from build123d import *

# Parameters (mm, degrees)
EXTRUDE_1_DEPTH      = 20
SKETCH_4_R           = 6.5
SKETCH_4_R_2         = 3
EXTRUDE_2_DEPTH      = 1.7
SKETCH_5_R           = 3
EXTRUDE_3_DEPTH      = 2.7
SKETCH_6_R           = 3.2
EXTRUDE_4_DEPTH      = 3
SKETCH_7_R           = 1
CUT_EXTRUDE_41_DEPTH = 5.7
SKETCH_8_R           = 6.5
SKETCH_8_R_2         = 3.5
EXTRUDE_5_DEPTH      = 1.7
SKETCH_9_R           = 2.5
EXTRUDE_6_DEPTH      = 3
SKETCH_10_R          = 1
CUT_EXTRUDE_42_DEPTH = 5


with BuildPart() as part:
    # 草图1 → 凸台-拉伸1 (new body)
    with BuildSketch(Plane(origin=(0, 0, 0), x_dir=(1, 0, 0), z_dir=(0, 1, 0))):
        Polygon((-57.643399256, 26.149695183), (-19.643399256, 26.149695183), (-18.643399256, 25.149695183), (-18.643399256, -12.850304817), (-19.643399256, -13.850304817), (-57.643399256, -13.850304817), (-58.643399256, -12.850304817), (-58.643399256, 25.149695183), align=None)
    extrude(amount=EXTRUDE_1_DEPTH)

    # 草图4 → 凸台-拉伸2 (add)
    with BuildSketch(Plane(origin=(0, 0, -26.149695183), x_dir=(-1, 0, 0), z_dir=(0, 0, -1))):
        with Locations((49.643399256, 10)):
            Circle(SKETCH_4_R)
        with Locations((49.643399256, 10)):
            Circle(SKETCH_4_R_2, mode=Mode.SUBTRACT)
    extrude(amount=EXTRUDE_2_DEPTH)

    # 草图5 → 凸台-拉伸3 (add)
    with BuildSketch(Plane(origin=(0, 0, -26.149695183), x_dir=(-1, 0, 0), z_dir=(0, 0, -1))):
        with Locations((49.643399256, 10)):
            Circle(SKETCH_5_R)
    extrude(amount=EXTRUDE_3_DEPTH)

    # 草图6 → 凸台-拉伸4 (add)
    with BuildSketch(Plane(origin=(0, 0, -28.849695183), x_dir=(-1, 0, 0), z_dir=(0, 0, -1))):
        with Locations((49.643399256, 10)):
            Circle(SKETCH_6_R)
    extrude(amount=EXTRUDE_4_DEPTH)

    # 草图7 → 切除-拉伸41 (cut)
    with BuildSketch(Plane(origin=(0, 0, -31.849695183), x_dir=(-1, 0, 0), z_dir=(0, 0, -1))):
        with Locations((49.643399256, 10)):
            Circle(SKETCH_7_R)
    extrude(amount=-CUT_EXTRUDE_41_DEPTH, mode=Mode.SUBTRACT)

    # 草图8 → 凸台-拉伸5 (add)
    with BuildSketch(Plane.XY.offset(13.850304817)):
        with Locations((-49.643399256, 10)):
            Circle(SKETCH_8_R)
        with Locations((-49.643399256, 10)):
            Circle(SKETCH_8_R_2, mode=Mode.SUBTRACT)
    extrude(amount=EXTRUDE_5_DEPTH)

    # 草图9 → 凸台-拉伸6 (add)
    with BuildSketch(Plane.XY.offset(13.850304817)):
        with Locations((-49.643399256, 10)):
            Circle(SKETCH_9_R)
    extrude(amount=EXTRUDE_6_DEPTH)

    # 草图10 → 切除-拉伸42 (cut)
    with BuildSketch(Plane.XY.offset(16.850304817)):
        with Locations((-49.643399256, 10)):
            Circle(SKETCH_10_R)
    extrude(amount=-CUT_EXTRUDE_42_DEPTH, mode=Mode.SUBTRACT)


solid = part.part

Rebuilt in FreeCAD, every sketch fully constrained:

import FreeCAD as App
import Part
import Sketcher
from FreeCAD import Vector

doc = App.newDocument("Part")
body = doc.addObject("PartDesign::Body", "Body")

sketch1 = body.newObject("Sketcher::SketchObject", "Sketch")
sketch1.AttachmentSupport = (doc.getObject("XZ_Plane"), [""])
sketch1.MapMode = "FlatFace"
sketch1.addGeometry(Part.LineSegment(Vector(-19.6, -26.1, 0), Vector(-57.6, -26.1, 0)), False)
sketch1.addGeometry(Part.LineSegment(Vector(-57.6, -26.1, 0), Vector(-58.6, -25.1, 0)), False)
sketch1.addGeometry(Part.LineSegment(Vector(-58.6, -25.1, 0), Vector(-58.6, 12.9, 0)), False)
sketch1.addGeometry(Part.LineSegment(Vector(-58.6, 12.9, 0), Vector(-57.6, 13.9, 0)), False)
sketch1.addGeometry(Part.LineSegment(Vector(-57.6, 13.9, 0), Vector(-19.6, 13.9, 0)), False)
sketch1.addGeometry(Part.LineSegment(Vector(-19.6, 13.9, 0), Vector(-18.6, 12.9, 0)), False)
sketch1.addGeometry(Part.LineSegment(Vector(-18.6, 12.9, 0), Vector(-18.6, -25.1, 0)), False)
sketch1.addGeometry(Part.LineSegment(Vector(-18.6, -25.1, 0), Vector(-19.6, -26.1, 0)), False)
sketch1.addConstraint(Sketcher.Constraint("Coincident", 0, 2, 1, 1))
sketch1.addConstraint(Sketcher.Constraint("Coincident", 1, 2, 2, 1))
sketch1.addConstraint(Sketcher.Constraint("Coincident", 2, 2, 3, 1))
sketch1.addConstraint(Sketcher.Constraint("Coincident", 3, 2, 4, 1))
sketch1.addConstraint(Sketcher.Constraint("Coincident", 4, 2, 5, 1))
sketch1.addConstraint(Sketcher.Constraint("Coincident", 5, 2, 6, 1))
sketch1.addConstraint(Sketcher.Constraint("Coincident", 6, 2, 7, 1))
sketch1.addConstraint(Sketcher.Constraint("Coincident", 7, 2, 0, 1))
sketch1.addConstraint(Sketcher.Constraint("Horizontal", 0))
sketch1.addConstraint(Sketcher.Constraint("Vertical", 2))
sketch1.addConstraint(Sketcher.Constraint("Horizontal", 4))
sketch1.addConstraint(Sketcher.Constraint("Vertical", 6))
sketch1.addConstraint(Sketcher.Constraint("Perpendicular", 1, 3))
sketch1.addConstraint(Sketcher.Constraint("Perpendicular", 3, 5))
sketch1.addConstraint(Sketcher.Constraint("Perpendicular", 5, 7))
sketch1.addConstraint(Sketcher.Constraint("Horizontal", 2, 2, 5, 2))
sketch1.addConstraint(Sketcher.Constraint("Horizontal", 1, 2, 6, 2))
sketch1.addConstraint(Sketcher.Constraint("Vertical", 0, 2, 3, 2))
sketch1.addConstraint(Sketcher.Constraint("Vertical", 4, 2, 7, 2))
sketch1.addConstraint(Sketcher.Constraint("Equal", 4, 2))
sketch1.addConstraint(Sketcher.Constraint("DistanceX", 0, 2, 0, 1, 38.0))
sketch1.addConstraint(Sketcher.Constraint("DistanceX", 1, 2, 0, 2, 1.0))
sketch1.addConstraint(Sketcher.Constraint("DistanceX", 0, 2, -1, 1, 57.643399))
sketch1.addConstraint(Sketcher.Constraint("DistanceY", 0, 2, -1, 1, 26.149695))
pad1 = body.newObject("PartDesign::Pad", "Pad")
pad1.Profile = sketch1
pad1.Length = 20
pad1.Reversed = True

sketch2 = body.newObject("Sketcher::SketchObject", "Sketch001")
sketch2.AttachmentSupport = (doc.getObject("XY_Plane"), [""])
sketch2.MapMode = "FlatFace"
sketch2.AttachmentOffset = App.Placement(Vector(0, 0, -26.149695), App.Rotation())
sketch2.addGeometry(Part.Circle(Vector(-49.6, 10, 0), Vector(0, 0, 1), 6.5), False)
sketch2.addGeometry(Part.Circle(Vector(-49.6, 10, 0), Vector(0, 0, 1), 3), False)
sketch2.addConstraint(Sketcher.Constraint("Coincident", 1, 3, 0, 3))
sketch2.addConstraint(Sketcher.Constraint("Diameter", 0, 13.0))
sketch2.addConstraint(Sketcher.Constraint("Diameter", 1, 6.0))
sketch2.addConstraint(Sketcher.Constraint("DistanceY", -1, 1, 0, 3, 10.0))
sketch2.addConstraint(Sketcher.Constraint("DistanceX", 0, 3, -1, 1, 49.643399))
pad2 = body.newObject("PartDesign::Pad", "Pad001")
pad2.Profile = sketch2
pad2.Length = 1.7
pad2.Reversed = True

sketch3 = body.newObject("Sketcher::SketchObject", "Sketch002")
sketch3.AttachmentSupport = (doc.getObject("XY_Plane"), [""])
sketch3.MapMode = "FlatFace"
sketch3.AttachmentOffset = App.Placement(Vector(0, 0, -26.149695), App.Rotation())
sketch3.addGeometry(Part.Circle(Vector(-49.6, 10, 0), Vector(0, 0, 1), 3), False)
sketch3.addConstraint(Sketcher.Constraint("Diameter", 0, 6.0))
sketch3.addConstraint(Sketcher.Constraint("DistanceY", -1, 1, 0, 3, 10.0))
sketch3.addConstraint(Sketcher.Constraint("DistanceX", 0, 3, -1, 1, 49.643399))
pad3 = body.newObject("PartDesign::Pad", "Pad002")
pad3.Profile = sketch3
pad3.Length = 2.7
pad3.Reversed = True

sketch4 = body.newObject("Sketcher::SketchObject", "Sketch003")
sketch4.AttachmentSupport = (doc.getObject("XY_Plane"), [""])
sketch4.MapMode = "FlatFace"
sketch4.AttachmentOffset = App.Placement(Vector(0, 0, -28.849695), App.Rotation())
sketch4.addGeometry(Part.Circle(Vector(-49.6, 10, 0), Vector(0, 0, 1), 3.2), False)
sketch4.addConstraint(Sketcher.Constraint("Diameter", 0, 6.4))
sketch4.addConstraint(Sketcher.Constraint("DistanceY", -1, 1, 0, 3, 10.0))
sketch4.addConstraint(Sketcher.Constraint("DistanceX", 0, 3, -1, 1, 49.643399))
pad4 = body.newObject("PartDesign::Pad", "Pad003")
pad4.Profile = sketch4
pad4.Length = 3
pad4.Reversed = True

sketch5 = body.newObject("Sketcher::SketchObject", "Sketch004")
sketch5.AttachmentSupport = (doc.getObject("XY_Plane"), [""])
sketch5.MapMode = "FlatFace"
sketch5.AttachmentOffset = App.Placement(Vector(0, 0, -31.849695), App.Rotation())
sketch5.addGeometry(Part.Circle(Vector(-49.6, 10, 0), Vector(0, 0, 1), 1), False)
sketch5.addConstraint(Sketcher.Constraint("Diameter", 0, 2.0))
sketch5.addConstraint(Sketcher.Constraint("DistanceY", -1, 1, 0, 3, 10.0))
sketch5.addConstraint(Sketcher.Constraint("DistanceX", 0, 3, -1, 1, 49.643399))
pocket1 = body.newObject("PartDesign::Pocket", "Pocket")
pocket1.Profile = sketch5
pocket1.Length = 5.7
pocket1.Reversed = True

sketch6 = body.newObject("Sketcher::SketchObject", "Sketch005")
sketch6.AttachmentSupport = (doc.getObject("XY_Plane"), [""])
sketch6.MapMode = "FlatFace"
sketch6.AttachmentOffset = App.Placement(Vector(0, 0, 13.850305), App.Rotation())
sketch6.addGeometry(Part.Circle(Vector(-49.6, 10, 0), Vector(0, 0, 1), 6.5), False)
sketch6.addGeometry(Part.Circle(Vector(-49.6, 10, 0), Vector(0, 0, 1), 3.5), False)
sketch6.addConstraint(Sketcher.Constraint("Coincident", 1, 3, 0, 3))
sketch6.addConstraint(Sketcher.Constraint("Diameter", 0, 13.0))
sketch6.addConstraint(Sketcher.Constraint("Diameter", 1, 7.0))
sketch6.addConstraint(Sketcher.Constraint("DistanceY", -1, 1, 0, 3, 10.0))
sketch6.addConstraint(Sketcher.Constraint("DistanceX", 0, 3, -1, 1, 49.643399))
pad5 = body.newObject("PartDesign::Pad", "Pad004")
pad5.Profile = sketch6
pad5.Length = 1.7

sketch7 = body.newObject("Sketcher::SketchObject", "Sketch006")
sketch7.AttachmentSupport = (doc.getObject("XY_Plane"), [""])
sketch7.MapMode = "FlatFace"
sketch7.AttachmentOffset = App.Placement(Vector(0, 0, 13.850305), App.Rotation())
sketch7.addGeometry(Part.Circle(Vector(-49.6, 10, 0), Vector(0, 0, 1), 2.5), False)
sketch7.addConstraint(Sketcher.Constraint("Diameter", 0, 5.0))
sketch7.addConstraint(Sketcher.Constraint("DistanceY", -1, 1, 0, 3, 10.0))
sketch7.addConstraint(Sketcher.Constraint("DistanceX", 0, 3, -1, 1, 49.643399))
pad6 = body.newObject("PartDesign::Pad", "Pad005")
pad6.Profile = sketch7
pad6.Length = 3

sketch8 = body.newObject("Sketcher::SketchObject", "Sketch007")
sketch8.AttachmentSupport = (doc.getObject("XY_Plane"), [""])
sketch8.MapMode = "FlatFace"
sketch8.AttachmentOffset = App.Placement(Vector(0, 0, 16.850305), App.Rotation())
sketch8.addGeometry(Part.Circle(Vector(-49.6, 10, 0), Vector(0, 0, 1), 1), False)
sketch8.addConstraint(Sketcher.Constraint("Diameter", 0, 2.0))
sketch8.addConstraint(Sketcher.Constraint("DistanceY", -1, 1, 0, 3, 10.0))
sketch8.addConstraint(Sketcher.Constraint("DistanceX", 0, 3, -1, 1, 49.643399))
pocket2 = body.newObject("PartDesign::Pocket", "Pocket001")
pocket2.Profile = sketch8
pocket2.Length = 5

doc.recompute()
